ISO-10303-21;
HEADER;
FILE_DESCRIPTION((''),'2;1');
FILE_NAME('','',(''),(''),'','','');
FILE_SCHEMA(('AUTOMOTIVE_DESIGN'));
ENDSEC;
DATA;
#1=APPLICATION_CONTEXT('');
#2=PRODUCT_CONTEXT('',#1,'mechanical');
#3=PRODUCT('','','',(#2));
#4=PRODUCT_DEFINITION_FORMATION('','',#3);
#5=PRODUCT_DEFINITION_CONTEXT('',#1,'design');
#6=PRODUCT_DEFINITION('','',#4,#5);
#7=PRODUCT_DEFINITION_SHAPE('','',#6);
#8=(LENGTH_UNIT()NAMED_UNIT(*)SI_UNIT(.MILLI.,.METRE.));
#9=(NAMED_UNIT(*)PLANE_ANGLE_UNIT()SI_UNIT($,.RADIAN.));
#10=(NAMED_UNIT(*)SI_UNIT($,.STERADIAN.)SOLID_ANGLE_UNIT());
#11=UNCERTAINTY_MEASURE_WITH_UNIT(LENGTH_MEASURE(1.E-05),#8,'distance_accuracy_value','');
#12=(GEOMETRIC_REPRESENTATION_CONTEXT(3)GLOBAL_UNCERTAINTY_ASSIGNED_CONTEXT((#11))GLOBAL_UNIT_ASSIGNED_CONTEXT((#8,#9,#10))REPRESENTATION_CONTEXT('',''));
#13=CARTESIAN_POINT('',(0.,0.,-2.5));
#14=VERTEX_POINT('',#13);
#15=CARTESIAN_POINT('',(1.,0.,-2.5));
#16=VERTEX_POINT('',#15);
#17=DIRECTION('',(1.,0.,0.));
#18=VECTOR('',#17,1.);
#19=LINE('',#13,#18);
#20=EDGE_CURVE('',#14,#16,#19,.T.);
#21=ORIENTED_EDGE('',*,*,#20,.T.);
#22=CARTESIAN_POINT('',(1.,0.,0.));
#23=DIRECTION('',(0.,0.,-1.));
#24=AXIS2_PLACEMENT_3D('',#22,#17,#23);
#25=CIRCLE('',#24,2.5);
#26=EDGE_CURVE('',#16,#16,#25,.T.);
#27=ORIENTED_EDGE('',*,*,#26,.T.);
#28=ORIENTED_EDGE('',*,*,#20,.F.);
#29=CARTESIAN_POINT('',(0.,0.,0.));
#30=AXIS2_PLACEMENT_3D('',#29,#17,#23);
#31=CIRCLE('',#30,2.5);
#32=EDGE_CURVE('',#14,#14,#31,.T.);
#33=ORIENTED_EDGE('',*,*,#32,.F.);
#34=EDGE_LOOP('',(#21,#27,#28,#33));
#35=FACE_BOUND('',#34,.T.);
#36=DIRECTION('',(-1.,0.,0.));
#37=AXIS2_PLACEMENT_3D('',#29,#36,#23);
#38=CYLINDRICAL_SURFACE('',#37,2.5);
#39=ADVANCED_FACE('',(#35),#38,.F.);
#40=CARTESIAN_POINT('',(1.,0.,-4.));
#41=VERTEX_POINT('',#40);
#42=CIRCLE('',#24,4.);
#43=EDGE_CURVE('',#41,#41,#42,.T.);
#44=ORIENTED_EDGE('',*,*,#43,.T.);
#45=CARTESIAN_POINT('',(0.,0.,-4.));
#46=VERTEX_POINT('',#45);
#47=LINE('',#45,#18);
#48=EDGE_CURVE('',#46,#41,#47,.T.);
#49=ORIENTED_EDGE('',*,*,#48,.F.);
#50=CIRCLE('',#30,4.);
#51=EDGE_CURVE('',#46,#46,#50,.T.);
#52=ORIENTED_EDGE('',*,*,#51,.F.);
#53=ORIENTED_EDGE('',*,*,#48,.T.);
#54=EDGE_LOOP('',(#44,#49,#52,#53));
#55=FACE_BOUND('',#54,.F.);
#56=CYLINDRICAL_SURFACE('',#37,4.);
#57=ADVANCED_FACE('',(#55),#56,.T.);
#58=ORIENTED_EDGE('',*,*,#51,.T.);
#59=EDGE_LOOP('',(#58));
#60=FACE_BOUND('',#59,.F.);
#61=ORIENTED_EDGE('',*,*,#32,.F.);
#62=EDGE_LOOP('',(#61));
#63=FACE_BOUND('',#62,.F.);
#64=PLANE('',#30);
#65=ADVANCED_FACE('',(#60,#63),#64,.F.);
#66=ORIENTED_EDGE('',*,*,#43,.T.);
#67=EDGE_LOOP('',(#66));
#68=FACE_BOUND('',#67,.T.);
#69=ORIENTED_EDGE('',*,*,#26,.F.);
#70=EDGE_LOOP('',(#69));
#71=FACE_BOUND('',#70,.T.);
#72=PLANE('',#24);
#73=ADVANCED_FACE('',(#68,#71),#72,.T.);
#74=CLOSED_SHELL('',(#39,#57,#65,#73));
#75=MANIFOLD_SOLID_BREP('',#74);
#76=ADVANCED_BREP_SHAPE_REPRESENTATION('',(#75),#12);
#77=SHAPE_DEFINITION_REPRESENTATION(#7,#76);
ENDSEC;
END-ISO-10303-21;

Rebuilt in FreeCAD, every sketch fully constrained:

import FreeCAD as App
import Part
import Sketcher
from FreeCAD import Vector

doc = App.newDocument("Part")
body = doc.addObject("PartDesign::Body", "Body")

# Sketch on YZ plane
sketch1 = doc.addObject("Sketcher::SketchObject", "Sketch")
body.addObject(sketch1)
sketch1.AttachmentSupport = (doc.YZ_Plane, [""])
sketch1.MapMode = "FlatFace"
sketch1.addGeometry(Part.Circle(Vector(0, 0, 0), Vector(0, 0, 1), 4), False)
sketch1.addGeometry(Part.Circle(Vector(0, 0, 0), Vector(0, 0, 1), 2.5), False)
sketch1.addConstraint(Sketcher.Constraint("Coincident", 0, 3, -1, 1))
sketch1.addConstraint(Sketcher.Constraint("Coincident", 1, 3, -1, 1))
sketch1.addConstraint(Sketcher.Constraint("Diameter", 0, 8.0))
sketch1.addConstraint(Sketcher.Constraint("Diameter", 1, 5.0))
pad1 = doc.addObject("PartDesign::Pad", "Pad")
body.addObject(pad1)
pad1.Profile = sketch1
pad1.Length = 1

doc.recompute()
